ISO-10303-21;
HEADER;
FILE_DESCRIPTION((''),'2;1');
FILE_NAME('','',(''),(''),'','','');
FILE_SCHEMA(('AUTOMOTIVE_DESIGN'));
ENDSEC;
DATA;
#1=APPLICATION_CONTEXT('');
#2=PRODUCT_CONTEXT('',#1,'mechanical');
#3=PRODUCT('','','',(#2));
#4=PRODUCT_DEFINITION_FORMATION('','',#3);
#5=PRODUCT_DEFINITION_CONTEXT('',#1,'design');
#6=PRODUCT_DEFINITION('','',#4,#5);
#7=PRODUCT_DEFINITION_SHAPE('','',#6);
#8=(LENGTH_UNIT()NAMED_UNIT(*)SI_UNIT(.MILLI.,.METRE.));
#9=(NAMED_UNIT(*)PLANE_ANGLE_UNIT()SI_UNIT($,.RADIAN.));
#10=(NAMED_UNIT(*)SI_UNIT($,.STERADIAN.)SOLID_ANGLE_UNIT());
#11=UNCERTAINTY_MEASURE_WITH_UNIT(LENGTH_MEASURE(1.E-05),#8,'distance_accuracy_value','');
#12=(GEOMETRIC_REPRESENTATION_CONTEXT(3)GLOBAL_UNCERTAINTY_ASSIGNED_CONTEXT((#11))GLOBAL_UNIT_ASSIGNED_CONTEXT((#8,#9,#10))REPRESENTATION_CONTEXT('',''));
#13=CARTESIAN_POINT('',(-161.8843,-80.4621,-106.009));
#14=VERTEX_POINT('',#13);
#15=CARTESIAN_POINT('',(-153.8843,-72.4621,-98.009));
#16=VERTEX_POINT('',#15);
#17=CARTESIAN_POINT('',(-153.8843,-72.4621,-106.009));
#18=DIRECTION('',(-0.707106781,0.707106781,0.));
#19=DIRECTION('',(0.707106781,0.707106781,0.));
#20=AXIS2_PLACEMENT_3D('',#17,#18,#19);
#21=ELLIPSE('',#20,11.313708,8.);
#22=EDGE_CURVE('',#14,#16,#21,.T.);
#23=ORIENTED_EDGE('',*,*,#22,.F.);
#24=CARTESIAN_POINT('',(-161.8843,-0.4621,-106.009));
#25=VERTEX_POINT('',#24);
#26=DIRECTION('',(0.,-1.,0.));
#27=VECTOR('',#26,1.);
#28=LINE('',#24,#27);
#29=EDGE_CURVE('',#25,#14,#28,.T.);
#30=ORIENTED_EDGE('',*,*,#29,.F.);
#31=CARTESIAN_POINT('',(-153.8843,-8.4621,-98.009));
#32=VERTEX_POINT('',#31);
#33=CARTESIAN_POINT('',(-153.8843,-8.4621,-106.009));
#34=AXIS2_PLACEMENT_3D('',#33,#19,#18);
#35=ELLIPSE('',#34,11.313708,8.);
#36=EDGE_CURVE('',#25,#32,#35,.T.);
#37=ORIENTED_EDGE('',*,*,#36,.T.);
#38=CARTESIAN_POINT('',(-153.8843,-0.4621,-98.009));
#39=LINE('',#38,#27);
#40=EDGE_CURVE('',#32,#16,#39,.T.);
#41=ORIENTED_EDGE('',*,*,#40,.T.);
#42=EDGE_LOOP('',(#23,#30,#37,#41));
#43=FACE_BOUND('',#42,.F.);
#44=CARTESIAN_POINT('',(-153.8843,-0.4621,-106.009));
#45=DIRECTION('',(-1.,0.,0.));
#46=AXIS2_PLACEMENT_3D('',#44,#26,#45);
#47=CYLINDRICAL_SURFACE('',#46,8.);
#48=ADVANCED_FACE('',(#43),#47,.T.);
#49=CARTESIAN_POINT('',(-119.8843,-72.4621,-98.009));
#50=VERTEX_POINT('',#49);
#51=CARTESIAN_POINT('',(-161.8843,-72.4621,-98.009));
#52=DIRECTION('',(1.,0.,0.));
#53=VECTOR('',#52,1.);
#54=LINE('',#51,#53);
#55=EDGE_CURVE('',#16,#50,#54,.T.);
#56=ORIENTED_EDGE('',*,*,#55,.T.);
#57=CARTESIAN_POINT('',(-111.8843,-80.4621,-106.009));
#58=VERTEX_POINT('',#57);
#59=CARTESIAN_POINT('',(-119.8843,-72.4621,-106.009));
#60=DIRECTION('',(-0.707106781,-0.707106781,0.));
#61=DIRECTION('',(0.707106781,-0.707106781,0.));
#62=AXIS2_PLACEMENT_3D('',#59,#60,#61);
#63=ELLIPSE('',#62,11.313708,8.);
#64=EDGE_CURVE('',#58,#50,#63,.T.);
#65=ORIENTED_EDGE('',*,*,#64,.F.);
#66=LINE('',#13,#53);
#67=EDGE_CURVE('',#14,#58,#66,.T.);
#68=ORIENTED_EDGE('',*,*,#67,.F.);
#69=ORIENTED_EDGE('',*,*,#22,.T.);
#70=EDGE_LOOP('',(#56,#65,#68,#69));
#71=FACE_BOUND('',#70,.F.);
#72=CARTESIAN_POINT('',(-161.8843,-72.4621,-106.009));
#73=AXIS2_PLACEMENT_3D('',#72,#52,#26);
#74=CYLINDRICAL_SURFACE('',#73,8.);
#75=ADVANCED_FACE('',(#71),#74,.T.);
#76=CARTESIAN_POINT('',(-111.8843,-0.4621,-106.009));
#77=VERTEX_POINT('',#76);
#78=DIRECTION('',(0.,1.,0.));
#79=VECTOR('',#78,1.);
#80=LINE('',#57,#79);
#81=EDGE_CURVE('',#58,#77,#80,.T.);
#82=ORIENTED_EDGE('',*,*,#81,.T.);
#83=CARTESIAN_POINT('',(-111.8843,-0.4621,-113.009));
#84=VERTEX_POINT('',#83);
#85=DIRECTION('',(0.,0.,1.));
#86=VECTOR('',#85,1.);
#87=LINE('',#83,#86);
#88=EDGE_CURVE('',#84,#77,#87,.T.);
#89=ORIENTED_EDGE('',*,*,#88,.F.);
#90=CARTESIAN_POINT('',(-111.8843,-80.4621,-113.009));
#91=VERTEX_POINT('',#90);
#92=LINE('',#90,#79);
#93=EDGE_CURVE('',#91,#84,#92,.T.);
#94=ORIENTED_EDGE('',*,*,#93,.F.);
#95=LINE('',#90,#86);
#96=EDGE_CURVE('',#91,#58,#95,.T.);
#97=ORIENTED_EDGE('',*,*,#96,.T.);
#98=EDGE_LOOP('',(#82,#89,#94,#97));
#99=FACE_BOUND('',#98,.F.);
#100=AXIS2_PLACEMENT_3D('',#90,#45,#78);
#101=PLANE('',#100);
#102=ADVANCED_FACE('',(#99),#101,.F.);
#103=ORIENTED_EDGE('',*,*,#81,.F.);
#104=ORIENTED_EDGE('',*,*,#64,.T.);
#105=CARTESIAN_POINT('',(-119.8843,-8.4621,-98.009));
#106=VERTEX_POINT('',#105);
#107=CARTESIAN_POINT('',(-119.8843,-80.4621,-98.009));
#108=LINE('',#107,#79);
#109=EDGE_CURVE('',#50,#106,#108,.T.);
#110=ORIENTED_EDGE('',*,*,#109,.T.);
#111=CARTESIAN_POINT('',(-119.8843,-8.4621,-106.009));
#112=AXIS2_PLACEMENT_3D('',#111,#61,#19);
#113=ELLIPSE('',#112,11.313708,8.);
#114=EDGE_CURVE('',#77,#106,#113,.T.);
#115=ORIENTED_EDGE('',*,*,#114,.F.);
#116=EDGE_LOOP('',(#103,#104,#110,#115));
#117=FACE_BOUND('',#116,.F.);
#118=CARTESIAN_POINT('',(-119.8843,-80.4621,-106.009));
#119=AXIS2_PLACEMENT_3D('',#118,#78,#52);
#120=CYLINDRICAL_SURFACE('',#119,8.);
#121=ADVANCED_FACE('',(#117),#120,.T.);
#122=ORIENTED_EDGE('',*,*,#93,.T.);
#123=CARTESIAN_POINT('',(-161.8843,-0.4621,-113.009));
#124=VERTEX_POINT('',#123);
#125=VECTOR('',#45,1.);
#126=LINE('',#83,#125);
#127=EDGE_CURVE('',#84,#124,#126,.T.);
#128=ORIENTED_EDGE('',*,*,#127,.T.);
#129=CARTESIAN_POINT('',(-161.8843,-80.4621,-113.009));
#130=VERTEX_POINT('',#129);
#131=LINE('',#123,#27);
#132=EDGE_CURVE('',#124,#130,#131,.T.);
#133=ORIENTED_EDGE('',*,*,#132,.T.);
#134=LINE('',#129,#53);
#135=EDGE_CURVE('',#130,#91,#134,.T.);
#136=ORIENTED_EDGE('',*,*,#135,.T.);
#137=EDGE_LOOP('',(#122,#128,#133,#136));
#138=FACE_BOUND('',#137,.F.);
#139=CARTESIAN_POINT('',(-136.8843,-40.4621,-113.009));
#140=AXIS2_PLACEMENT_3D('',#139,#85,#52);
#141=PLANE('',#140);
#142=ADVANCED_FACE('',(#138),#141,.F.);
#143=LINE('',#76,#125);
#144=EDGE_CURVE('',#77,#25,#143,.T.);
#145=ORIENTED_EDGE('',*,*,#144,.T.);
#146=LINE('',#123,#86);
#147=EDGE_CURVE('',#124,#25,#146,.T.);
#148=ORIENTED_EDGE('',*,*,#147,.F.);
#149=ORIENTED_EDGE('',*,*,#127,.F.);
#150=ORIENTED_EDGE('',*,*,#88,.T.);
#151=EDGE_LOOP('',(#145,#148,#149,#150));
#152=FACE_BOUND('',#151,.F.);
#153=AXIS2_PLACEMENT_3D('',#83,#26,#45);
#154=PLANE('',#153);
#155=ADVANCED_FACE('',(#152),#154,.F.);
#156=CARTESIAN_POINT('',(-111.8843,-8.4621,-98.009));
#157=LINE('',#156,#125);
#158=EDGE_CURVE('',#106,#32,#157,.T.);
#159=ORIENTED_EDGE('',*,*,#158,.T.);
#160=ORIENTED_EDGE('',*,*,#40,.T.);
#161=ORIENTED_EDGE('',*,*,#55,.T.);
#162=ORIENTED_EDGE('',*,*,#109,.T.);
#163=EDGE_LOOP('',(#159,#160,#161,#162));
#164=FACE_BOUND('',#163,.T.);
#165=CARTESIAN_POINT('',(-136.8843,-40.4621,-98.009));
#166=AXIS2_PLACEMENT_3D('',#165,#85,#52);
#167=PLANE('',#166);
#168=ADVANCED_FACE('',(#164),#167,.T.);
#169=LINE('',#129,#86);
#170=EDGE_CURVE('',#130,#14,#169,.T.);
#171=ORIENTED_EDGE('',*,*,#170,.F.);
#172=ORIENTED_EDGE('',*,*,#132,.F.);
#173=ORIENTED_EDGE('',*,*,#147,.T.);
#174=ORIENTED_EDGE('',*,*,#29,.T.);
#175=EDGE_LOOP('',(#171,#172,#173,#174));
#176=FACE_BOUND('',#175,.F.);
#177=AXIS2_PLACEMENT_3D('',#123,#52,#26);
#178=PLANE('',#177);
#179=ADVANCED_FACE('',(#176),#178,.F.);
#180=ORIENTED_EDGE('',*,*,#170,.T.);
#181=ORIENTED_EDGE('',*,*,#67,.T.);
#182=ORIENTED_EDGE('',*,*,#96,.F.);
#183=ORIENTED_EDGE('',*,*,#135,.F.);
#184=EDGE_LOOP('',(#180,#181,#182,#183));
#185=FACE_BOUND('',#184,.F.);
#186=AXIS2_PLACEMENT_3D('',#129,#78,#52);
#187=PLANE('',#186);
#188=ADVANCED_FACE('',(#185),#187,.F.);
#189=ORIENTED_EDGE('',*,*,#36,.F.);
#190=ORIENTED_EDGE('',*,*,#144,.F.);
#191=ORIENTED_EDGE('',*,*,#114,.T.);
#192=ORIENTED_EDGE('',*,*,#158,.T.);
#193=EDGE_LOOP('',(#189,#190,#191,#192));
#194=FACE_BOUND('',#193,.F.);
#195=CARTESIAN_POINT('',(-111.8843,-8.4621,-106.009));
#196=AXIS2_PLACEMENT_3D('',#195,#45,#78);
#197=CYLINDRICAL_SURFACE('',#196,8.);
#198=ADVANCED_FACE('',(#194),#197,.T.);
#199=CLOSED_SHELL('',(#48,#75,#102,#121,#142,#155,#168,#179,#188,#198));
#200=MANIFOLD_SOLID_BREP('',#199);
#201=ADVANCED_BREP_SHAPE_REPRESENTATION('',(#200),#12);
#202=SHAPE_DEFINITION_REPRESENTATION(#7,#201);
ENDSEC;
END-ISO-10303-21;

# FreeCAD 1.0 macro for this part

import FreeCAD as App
import Part
import Sketcher
Q = App.Units.Quantity


def edges_at(feature, points):
    """Names of the edges that pass closest to the given points."""
    edges = feature.Shape.Edges
    near = lambda p: min(range(len(edges)), key=lambda i: edges[i].distToShape(Part.Vertex(*p))[0])
    return sorted({f"Edge{near(p) + 1}" for p in points})

doc = App.newDocument("Part")
body = doc.addObject("PartDesign::Body", "Body")

# Sketch on XY plane
sketch1 = body.newObject("Sketcher::SketchObject", "Sketch")
sketch1.AttachmentSupport = (doc.getObject("XY_Plane"), [""])
sketch1.MapMode = "FlatFace"
sketch1.AttachmentOffset = App.Placement(App.Vector(0, 0, -113.009), App.Rotation())
sketch1.addGeometry([
    Part.LineSegment(App.Vector(-162, 0, 0), App.Vector(-162, -80, 0)),
    Part.LineSegment(App.Vector(-162, -80, 0), App.Vector(-112, -80, 0)),
    Part.LineSegment(App.Vector(-112, -80, 0), App.Vector(-112, 0, 0)),
    Part.LineSegment(App.Vector(-112, 0, 0), App.Vector(-162, 0, 0)),
], False)
sketch1.addConstraint([
    Sketcher.Constraint("Coincident", 0, 2, 1, 1),
    Sketcher.Constraint("Coincident", 1, 2, 2, 1),
    Sketcher.Constraint("Coincident", 2, 2, 3, 1),
    Sketcher.Constraint("Coincident", 3, 2, 0, 1),
    Sketcher.Constraint("Vertical", 0),
    Sketcher.Constraint("Horizontal", 1),
    Sketcher.Constraint("Vertical", 2),
    Sketcher.Constraint("Horizontal", 3),
    Sketcher.Constraint("DistanceX", 1, 1, 1, 2, Q("50 mm")),
    Sketcher.Constraint("DistanceY", 0, 2, 0, 1, Q("80 mm")),
    Sketcher.Constraint("DistanceY", 0, 2, -1, 1, Q("80.462 mm")),
    Sketcher.Constraint("DistanceX", 0, 2, -1, 1, Q("161.8843 mm")),
])
pad1 = body.newObject("PartDesign::Pad", "Pad")
pad1.Profile = sketch1
pad1.Length = 15
doc.recompute()

fillet = body.newObject("PartDesign::Fillet", "Fillet")
fillet.Base = (pad1, edges_at(pad1, [
    (-136.884, -80.462, -98.009),
    (-111.884, -40.462, -98.009),
    (-136.884, -0.462, -98.009),
    (-161.884, -40.462, -98.009),
]))
fillet.Radius = 8

doc.recompute()
